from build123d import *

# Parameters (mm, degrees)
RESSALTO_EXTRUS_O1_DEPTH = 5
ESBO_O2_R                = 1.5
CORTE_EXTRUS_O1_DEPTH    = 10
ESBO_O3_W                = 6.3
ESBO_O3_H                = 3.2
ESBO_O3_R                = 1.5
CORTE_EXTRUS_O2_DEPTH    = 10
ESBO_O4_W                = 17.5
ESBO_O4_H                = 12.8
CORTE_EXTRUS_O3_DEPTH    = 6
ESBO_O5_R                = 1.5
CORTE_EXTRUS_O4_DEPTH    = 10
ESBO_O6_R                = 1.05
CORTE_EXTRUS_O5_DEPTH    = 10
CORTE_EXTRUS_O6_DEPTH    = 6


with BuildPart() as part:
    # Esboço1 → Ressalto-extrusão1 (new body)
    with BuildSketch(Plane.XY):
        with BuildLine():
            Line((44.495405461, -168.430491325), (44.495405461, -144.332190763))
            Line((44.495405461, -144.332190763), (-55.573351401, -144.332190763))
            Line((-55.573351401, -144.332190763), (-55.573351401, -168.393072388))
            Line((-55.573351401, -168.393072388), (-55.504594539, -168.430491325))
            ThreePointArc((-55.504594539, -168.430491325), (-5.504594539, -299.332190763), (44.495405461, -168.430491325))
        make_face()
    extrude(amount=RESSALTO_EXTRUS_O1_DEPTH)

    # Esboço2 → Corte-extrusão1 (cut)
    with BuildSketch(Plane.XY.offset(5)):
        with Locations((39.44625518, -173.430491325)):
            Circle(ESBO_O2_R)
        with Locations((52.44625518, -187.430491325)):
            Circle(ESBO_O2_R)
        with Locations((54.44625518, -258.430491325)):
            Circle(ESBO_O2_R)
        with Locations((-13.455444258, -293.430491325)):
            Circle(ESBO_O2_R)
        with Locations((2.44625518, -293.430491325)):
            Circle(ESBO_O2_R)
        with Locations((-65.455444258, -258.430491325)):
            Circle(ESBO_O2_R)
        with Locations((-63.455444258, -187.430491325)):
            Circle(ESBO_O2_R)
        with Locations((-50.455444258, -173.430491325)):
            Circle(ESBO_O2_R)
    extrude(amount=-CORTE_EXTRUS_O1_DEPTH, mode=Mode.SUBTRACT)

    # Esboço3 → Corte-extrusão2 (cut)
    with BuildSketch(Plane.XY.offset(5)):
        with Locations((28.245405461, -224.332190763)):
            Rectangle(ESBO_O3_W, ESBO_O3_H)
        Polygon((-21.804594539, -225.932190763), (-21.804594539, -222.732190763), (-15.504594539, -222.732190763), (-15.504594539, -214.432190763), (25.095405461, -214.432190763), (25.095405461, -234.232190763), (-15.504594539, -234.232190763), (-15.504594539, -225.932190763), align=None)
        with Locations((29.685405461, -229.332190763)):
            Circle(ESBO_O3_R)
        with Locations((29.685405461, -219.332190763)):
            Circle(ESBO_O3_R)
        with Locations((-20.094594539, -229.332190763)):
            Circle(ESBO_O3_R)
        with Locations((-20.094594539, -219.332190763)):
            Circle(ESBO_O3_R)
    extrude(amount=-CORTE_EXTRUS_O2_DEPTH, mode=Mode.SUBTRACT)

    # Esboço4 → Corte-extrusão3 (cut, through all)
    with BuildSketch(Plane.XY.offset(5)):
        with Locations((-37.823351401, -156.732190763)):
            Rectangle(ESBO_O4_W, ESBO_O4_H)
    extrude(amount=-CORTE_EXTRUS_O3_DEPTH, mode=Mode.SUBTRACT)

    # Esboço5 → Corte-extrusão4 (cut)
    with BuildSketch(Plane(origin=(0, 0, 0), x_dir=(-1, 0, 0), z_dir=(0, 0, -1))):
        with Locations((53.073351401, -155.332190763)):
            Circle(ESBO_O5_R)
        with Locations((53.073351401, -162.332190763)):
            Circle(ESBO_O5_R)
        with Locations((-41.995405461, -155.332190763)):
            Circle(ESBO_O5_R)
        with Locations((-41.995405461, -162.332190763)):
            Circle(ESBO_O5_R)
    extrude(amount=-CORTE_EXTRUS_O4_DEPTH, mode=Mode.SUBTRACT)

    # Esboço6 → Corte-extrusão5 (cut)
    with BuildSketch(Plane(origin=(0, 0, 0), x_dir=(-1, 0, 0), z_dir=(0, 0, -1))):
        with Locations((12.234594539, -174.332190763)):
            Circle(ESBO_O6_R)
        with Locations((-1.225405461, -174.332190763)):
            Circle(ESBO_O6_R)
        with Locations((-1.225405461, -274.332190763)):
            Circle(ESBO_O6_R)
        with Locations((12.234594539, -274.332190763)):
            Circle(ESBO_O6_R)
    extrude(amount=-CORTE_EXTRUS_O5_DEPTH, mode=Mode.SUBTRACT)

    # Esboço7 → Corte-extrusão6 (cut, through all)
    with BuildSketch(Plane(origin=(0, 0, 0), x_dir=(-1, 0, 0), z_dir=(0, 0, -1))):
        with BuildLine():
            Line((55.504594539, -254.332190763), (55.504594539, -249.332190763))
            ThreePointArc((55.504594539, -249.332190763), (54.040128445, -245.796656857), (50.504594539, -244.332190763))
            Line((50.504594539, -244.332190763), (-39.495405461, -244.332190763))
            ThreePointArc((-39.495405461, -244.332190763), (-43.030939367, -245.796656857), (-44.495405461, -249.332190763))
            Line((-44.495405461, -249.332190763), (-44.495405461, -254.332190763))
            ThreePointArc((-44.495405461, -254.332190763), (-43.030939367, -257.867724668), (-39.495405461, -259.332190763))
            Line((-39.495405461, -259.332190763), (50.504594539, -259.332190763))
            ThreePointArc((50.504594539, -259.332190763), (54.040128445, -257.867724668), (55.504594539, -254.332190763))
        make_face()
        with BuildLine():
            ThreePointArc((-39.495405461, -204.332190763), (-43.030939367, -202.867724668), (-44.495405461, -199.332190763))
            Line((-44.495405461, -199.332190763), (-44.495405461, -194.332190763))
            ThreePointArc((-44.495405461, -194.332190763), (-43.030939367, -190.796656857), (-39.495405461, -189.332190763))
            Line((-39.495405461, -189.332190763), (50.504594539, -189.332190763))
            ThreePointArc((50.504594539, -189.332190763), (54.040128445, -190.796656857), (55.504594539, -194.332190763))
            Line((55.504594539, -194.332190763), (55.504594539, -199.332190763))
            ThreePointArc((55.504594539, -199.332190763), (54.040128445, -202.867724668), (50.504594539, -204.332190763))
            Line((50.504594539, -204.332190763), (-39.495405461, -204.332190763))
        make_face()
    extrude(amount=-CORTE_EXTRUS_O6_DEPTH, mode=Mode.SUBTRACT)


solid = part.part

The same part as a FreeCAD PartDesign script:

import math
import FreeCAD as App
import Part
import Sketcher

V = App.Vector
Q = App.Units.Quantity


def add_polygon(sketch, points):
    """Adds a closed chain of lines whose ends are joined by coincident constraints."""
    first, n = sketch.GeometryCount, len(points)
    for a, b in zip(points, points[1:] + points[:1]):
        sketch.addGeometry(Part.LineSegment(App.Vector(*a, 0), App.Vector(*b, 0)), False)
    for i in range(n):
        sketch.addConstraint(Sketcher.Constraint("Coincident", first + i, 2, first + (i + 1) % n, 1))

doc = App.newDocument("Part")
body = doc.addObject("PartDesign::Body", "Body")

sketch1 = body.newObject("Sketcher::SketchObject", "Sketch")
sketch1.AttachmentSupport = (doc.getObject("XY_Plane"), [""])
sketch1.MapMode = "FlatFace"
sketch1.addGeometry(Part.LineSegment(V(44.5, -168.43, 0), V(44.5, -144.33, 0)), False)
sketch1.addGeometry(Part.LineSegment(V(44.5, -144.33, 0), V(-55.57, -144.33, 0)), False)
sketch1.addGeometry(Part.LineSegment(V(-55.57, -144.33, 0), V(-55.57, -168.39, 0)), False)
sketch1.addGeometry(Part.LineSegment(V(-55.57, -168.39, 0), V(-55.5, -168.43, 0)), False)
sketch1.addGeometry(Part.ArcOfCircle(Part.Circle(V(-5.5, -224.33, 0), V(0, 0, 1), 75), math.radians(132), math.radians(408)), False)
sketch1.addConstraint(Sketcher.Constraint("Coincident", 0, 2, 1, 1))
sketch1.addConstraint(Sketcher.Constraint("Coincident", 1, 2, 2, 1))
sketch1.addConstraint(Sketcher.Constraint("Coincident", 2, 2, 3, 1))
sketch1.addConstraint(Sketcher.Constraint("Coincident", 3, 2, 4, 1))
sketch1.addConstraint(Sketcher.Constraint("Coincident", 4, 2, 0, 1))
sketch1.addConstraint(Sketcher.Constraint("Vertical", 0))
sketch1.addConstraint(Sketcher.Constraint("Horizontal", 1))
sketch1.addConstraint(Sketcher.Constraint("Vertical", 2))
sketch1.addConstraint(Sketcher.Constraint("Horizontal", 3, 2, 4, 2))
sketch1.addConstraint(Sketcher.Constraint("Radius", 4, Q("75 mm")))
sketch1.addConstraint(Sketcher.Constraint("DistanceX", 4, 3, 0, 2, Q("50 mm")))
sketch1.addConstraint(Sketcher.Constraint("DistanceY", 4, 3, 0, 2, Q("80 mm")))
sketch1.addConstraint(Sketcher.Constraint("DistanceY", 2, 2, 2, 1, Q("24.060882 mm")))
sketch1.addConstraint(Sketcher.Constraint("Distance", 3, Q("0.07828 mm")))
sketch1.addConstraint(Sketcher.Constraint("DistanceY", 4, 3, -1, 1, Q("224.332191 mm")))
sketch1.addConstraint(Sketcher.Constraint("DistanceX", 1, 2, -1, 1, Q("55.573351 mm")))
pad1 = body.newObject("PartDesign::Pad", "Pad")
pad1.Profile = sketch1
pad1.Length = 5

sketch2 = body.newObject("Sketcher::SketchObject", "Sketch001")
sketch2.AttachmentSupport = (doc.getObject("XY_Plane"), [""])
sketch2.MapMode = "FlatFace"
sketch2.AttachmentOffset = App.Placement(V(0, 0, 5), App.Rotation())
sketch2.addGeometry(Part.Circle(V(39.4, -173.4, 0), V(0, 0, 1), 1.5), False)
sketch2.addGeometry(Part.Circle(V(52.4, -187.4, 0), V(0, 0, 1), 1.5), False)
sketch2.addGeometry(Part.Circle(V(54.4, -258.4, 0), V(0, 0, 1), 1.5), False)
sketch2.addGeometry(Part.Circle(V(-13.5, -293.4, 0), V(0, 0, 1), 1.5), False)
sketch2.addGeometry(Part.Circle(V(2.4, -293.4, 0), V(0, 0, 1), 1.5), False)
sketch2.addGeometry(Part.Circle(V(-65.5, -258.4, 0), V(0, 0, 1), 1.5), False)
sketch2.addGeometry(Part.Circle(V(-63.5, -187.4, 0), V(0, 0, 1), 1.5), False)
sketch2.addGeometry(Part.Circle(V(-50.5, -173.4, 0), V(0, 0, 1), 1.5), False)
sketch2.addConstraint(Sketcher.Constraint("Equal", 0, 1))
sketch2.addConstraint(Sketcher.Constraint("Equal", 1, 2))
sketch2.addConstraint(Sketcher.Constraint("Equal", 2, 3))
sketch2.addConstraint(Sketcher.Constraint("Equal", 3, 4))
sketch2.addConstraint(Sketcher.Constraint("Equal", 4, 5))
sketch2.addConstraint(Sketcher.Constraint("Equal", 5, 6))
sketch2.addConstraint(Sketcher.Constraint("Equal", 6, 7))
sketch2.addConstraint(Sketcher.Constraint("Horizontal", 3, 3, 4, 3))
sketch2.addConstraint(Sketcher.Constraint("Horizontal", 2, 3, 5, 3))
sketch2.addConstraint(Sketcher.Constraint("Horizontal", 1, 3, 6, 3))
sketch2.addConstraint(Sketcher.Constraint("Horizontal", 0, 3, 7, 3))
sketch2.addConstraint(Sketcher.Constraint("Diameter", 0, Q("3 mm")))
sketch2.addConstraint(Sketcher.Constraint("DistanceX", 0, 3, 1, 3, Q("13 mm")))
sketch2.addConstraint(Sketcher.Constraint("DistanceY", 1, 3, 0, 3, Q("14 mm")))
sketch2.addConstraint(Sketcher.Constraint("DistanceX", 1, 3, 2, 3, Q("2 mm")))
sketch2.addConstraint(Sketcher.Constraint("DistanceY", 2, 3, 1, 3, Q("71 mm")))
sketch2.addConstraint(Sketcher.Constraint("DistanceY", 3, 3, 2, 3, Q("35 mm")))
sketch2.addConstraint(Sketcher.Constraint("DistanceX", 4, 3, 2, 3, Q("52 mm")))
sketch2.addConstraint(Sketcher.Constraint("DistanceX", 5, 3, 3, 3, Q("52 mm")))
sketch2.addConstraint(Sketcher.Constraint("DistanceX", 5, 3, 6, 3, Q("2 mm")))
sketch2.addConstraint(Sketcher.Constraint("DistanceX", 6, 3, 7, 3, Q("13 mm")))
sketch2.addConstraint(Sketcher.Constraint("DistanceX", 3, 3, 2, 3, Q("67.901699 mm")))
sketch2.addConstraint(Sketcher.Constraint("DistanceY", 0, 3, -1, 1, Q("173.430491 mm")))
sketch2.addConstraint(Sketcher.Constraint("DistanceX", -1, 1, 0, 3, Q("39.446255 mm")))
pocket1 = body.newObject("PartDesign::Pocket", "Pocket")
pocket1.Profile = sketch2
pocket1.Length = 10

sketch3 = body.newObject("Sketcher::SketchObject", "Sketch002")
sketch3.AttachmentSupport = (doc.getObject("XY_Plane"), [""])
sketch3.MapMode = "FlatFace"
sketch3.AttachmentOffset = App.Placement(V(0, 0, 5), App.Rotation())
add_polygon(sketch3, [(25.1, -225.9), (31.4, -225.9), (31.4, -222.7), (25.1, -222.7), (25.1, -214.4), (-15.5, -214.4), (-15.5, -222.7), (-21.8, -222.7), (-21.8, -225.9), (-15.5, -225.9), (-15.5, -234.2), (25.1, -234.2)])
sketch3.addGeometry(Part.Circle(V(29.7, -229.3, 0), V(0, 0, 1), 1.5), False)
sketch3.addGeometry(Part.Circle(V(29.7, -219.3, 0), V(0, 0, 1), 1.5), False)
sketch3.addGeometry(Part.Circle(V(-20.1, -229.3, 0), V(0, 0, 1), 1.5), False)
sketch3.addGeometry(Part.Circle(V(-20.1, -219.3, 0), V(0, 0, 1), 1.5), False)
sketch3.addConstraint(Sketcher.Constraint("Horizontal", 0))
sketch3.addConstraint(Sketcher.Constraint("Vertical", 1))
sketch3.addConstraint(Sketcher.Constraint("Horizontal", 2))
sketch3.addConstraint(Sketcher.Constraint("Vertical", 3))
sketch3.addConstraint(Sketcher.Constraint("Horizontal", 4))
sketch3.addConstraint(Sketcher.Constraint("Vertical", 5))
sketch3.addConstraint(Sketcher.Constraint("Horizontal", 6))
sketch3.addConstraint(Sketcher.Constraint("Vertical", 7))
sketch3.addConstraint(Sketcher.Constraint("Horizontal", 8))
sketch3.addConstraint(Sketcher.Constraint("Vertical", 9))
sketch3.addConstraint(Sketcher.Constraint("Horizontal", 10))
sketch3.addConstraint(Sketcher.Constraint("Vertical", 11))
sketch3.addConstraint(Sketcher.Constraint("Equal", 12, 13))
sketch3.addConstraint(Sketcher.Constraint("Equal", 13, 14))
sketch3.addConstraint(Sketcher.Constraint("Equal", 14, 15))
sketch3.addConstraint(Sketcher.Constraint("Horizontal", 12, 3, 14, 3))
sketch3.addConstraint(Sketcher.Constraint("Horizontal", 13, 3, 15, 3))
sketch3.addConstraint(Sketcher.Constraint("Horizontal", 2, 2, 5, 2))
sketch3.addConstraint(Sketcher.Constraint("Horizontal", 0, 2, 7, 2))
sketch3.addConstraint(Sketcher.Constraint("Vertical", 12, 3, 13, 3))
sketch3.addConstraint(Sketcher.Constraint("Vertical", 14, 3, 15, 3))
sketch3.addConstraint(Sketcher.Constraint("Vertical", 5, 2, 8, 2))
sketch3.addConstraint(Sketcher.Constraint("Vertical", 3, 2, 10, 2))
sketch3.addConstraint(Sketcher.Constraint("Equal", 2, 6))
sketch3.addConstraint(Sketcher.Constraint("Equal", 5, 9))
sketch3.addConstraint(Sketcher.Constraint("Diameter", 12, Q("3 mm")))
sketch3.addConstraint(Sketcher.Constraint("DistanceX", 0, 1, 0, 2, Q("6.3 mm")))
sketch3.addConstraint(Sketcher.Constraint("DistanceX", 4, 2, 4, 1, Q("40.6 mm")))
sketch3.addConstraint(Sketcher.Constraint("DistanceY", 1, 1, 1, 2, Q("3.2 mm")))
sketch3.addConstraint(Sketcher.Constraint("DistanceY", 3, 1, 3, 2, Q("8.3 mm")))
sketch3.addConstraint(Sketcher.Constraint("DistanceY", 12, 3, 13, 3, Q("10 mm")))
sketch3.addConstraint(Sketcher.Constraint("DistanceY", 12, 3, 0, 2, Q("3.4 mm")))
sketch3.addConstraint(Sketcher.Constraint("DistanceX", 14, 3, 12, 3, Q("49.78 mm")))
sketch3.addConstraint(Sketcher.Constraint("DistanceX", 12, 3, 0, 2, Q("1.71 mm")))
sketch3.addConstraint(Sketcher.Constraint("DistanceY", 12, 3, -1, 1, Q("229.332191 mm")))
sketch3.addConstraint(Sketcher.Constraint("DistanceX", -1, 1, 12, 3, Q("29.685405 mm")))
pocket2 = body.newObject("PartDesign::Pocket", "Pocket001")
pocket2.Profile = sketch3
pocket2.Length = 10

sketch4 = body.newObject("Sketcher::SketchObject", "Sketch003")
sketch4.AttachmentSupport = (doc.getObject("XY_Plane"), [""])
sketch4.MapMode = "FlatFace"
sketch4.AttachmentOffset = App.Placement(V(0, 0, 5), App.Rotation())
add_polygon(sketch4, [(-47, -150), (-47, -163), (-29, -163), (-29, -150)])
sketch4.addConstraint(Sketcher.Constraint("Vertical", 0))
sketch4.addConstraint(Sketcher.Constraint("Horizontal", 1))
sketch4.addConstraint(Sketcher.Constraint("Vertical", 2))
sketch4.addConstraint(Sketcher.Constraint("Horizontal", 3))
sketch4.addConstraint(Sketcher.Constraint("DistanceX", 1, 1, 1, 2, Q("17.5 mm")))
sketch4.addConstraint(Sketcher.Constraint("DistanceY", 0, 2, 0, 1, Q("12.8 mm")))
sketch4.addConstraint(Sketcher.Constraint("DistanceX", 0, 2, -1, 1, Q("46.573351 mm")))
sketch4.addConstraint(Sketcher.Constraint("DistanceY", 0, 2, -1, 1, Q("163.132191 mm")))
pocket3 = body.newObject("PartDesign::Pocket", "Pocket002")
pocket3.Profile = sketch4
pocket3.Type = "ThroughAll"

sketch5 = body.newObject("Sketcher::SketchObject", "Sketch004")
sketch5.AttachmentSupport = (doc.getObject("XY_Plane"), [""])
sketch5.MapMode = "FlatFace"
sketch5.addGeometry(Part.Circle(V(-53.1, -155.3, 0), V(0, 0, 1), 1.5), False)
sketch5.addGeometry(Part.Circle(V(-53.1, -162.3, 0), V(0, 0, 1), 1.5), False)
sketch5.addGeometry(Part.Circle(V(42, -155.3, 0), V(0, 0, 1), 1.5), False)
sketch5.addGeometry(Part.Circle(V(42, -162.3, 0), V(0, 0, 1), 1.5), False)
sketch5.addConstraint(Sketcher.Constraint("Equal", 0, 1))
sketch5.addConstraint(Sketcher.Constraint("Equal", 1, 2))
sketch5.addConstraint(Sketcher.Constraint("Equal", 2, 3))
sketch5.addConstraint(Sketcher.Constraint("Horizontal", 0, 3, 2, 3))
sketch5.addConstraint(Sketcher.Constraint("Horizontal", 1, 3, 3, 3))
sketch5.addConstraint(Sketcher.Constraint("Vertical", 0, 3, 1, 3))
sketch5.addConstraint(Sketcher.Constraint("Vertical", 2, 3, 3, 3))
sketch5.addConstraint(Sketcher.Constraint("Diameter", 0, Q("3 mm")))
sketch5.addConstraint(Sketcher.Constraint("DistanceY", 1, 3, 0, 3, Q("7 mm")))
sketch5.addConstraint(Sketcher.Constraint("DistanceX", 0, 3, -1, 1, Q("53.073351 mm")))
sketch5.addConstraint(Sketcher.Constraint("DistanceY", 0, 3, -1, 1, Q("155.332191 mm")))
sketch5.addConstraint(Sketcher.Constraint("DistanceX", -1, 1, 2, 3, Q("41.995405 mm")))
pocket4 = body.newObject("PartDesign::Pocket", "Pocket003")
pocket4.Profile = sketch5
pocket4.Length = 10
pocket4.Reversed = True

sketch6 = body.newObject("Sketcher::SketchObject", "Sketch005")
sketch6.AttachmentSupport = (doc.getObject("XY_Plane"), [""])
sketch6.MapMode = "FlatFace"
sketch6.addGeometry(Part.Circle(V(-12.2, -174.3, 0), V(0, 0, 1), 1.1), False)
sketch6.addGeometry(Part.Circle(V(1.2, -174.3, 0), V(0, 0, 1), 1.1), False)
sketch6.addGeometry(Part.Circle(V(1.2, -274.3, 0), V(0, 0, 1), 1.1), False)
sketch6.addGeometry(Part.Circle(V(-12.2, -274.3, 0), V(0, 0, 1), 1.1), False)
sketch6.addConstraint(Sketcher.Constraint("Equal", 0, 1))
sketch6.addConstraint(Sketcher.Constraint("Equal", 1, 2))
sketch6.addConstraint(Sketcher.Constraint("Equal", 2, 3))
sketch6.addConstraint(Sketcher.Constraint("Horizontal", 0, 3, 1, 3))
sketch6.addConstraint(Sketcher.Constraint("Horizontal", 2, 3, 3, 3))
sketch6.addConstraint(Sketcher.Constraint("Vertical", 1, 3, 2, 3))
sketch6.addConstraint(Sketcher.Constraint("Vertical", 0, 3, 3, 3))
sketch6.addConstraint(Sketcher.Constraint("Diameter", 0, Q("2.1 mm")))
sketch6.addConstraint(Sketcher.Constraint("DistanceY", 2, 3, 1, 3, Q("100 mm")))
sketch6.addConstraint(Sketcher.Constraint("DistanceX", 0, 3, 1, 3, Q("13.46 mm")))
sketch6.addConstraint(Sketcher.Constraint("DistanceY", 0, 3, -1, 1, Q("174.332191 mm")))
sketch6.addConstraint(Sketcher.Constraint("DistanceX", 0, 3, -1, 1, Q("12.234595 mm")))
pocket5 = body.newObject("PartDesign::Pocket", "Pocket004")
pocket5.Profile = sketch6
pocket5.Length = 10
pocket5.Reversed = True

sketch7 = body.newObject("Sketcher::SketchObject", "Sketch006")
sketch7.AttachmentSupport = (doc.getObject("XY_Plane"), [""])
sketch7.MapMode = "FlatFace"
sketch7.addGeometry(Part.LineSegment(V(-56, -254, 0), V(-56, -249, 0)), False)
sketch7.addGeometry(Part.ArcOfCircle(Part.Circle(V(-51, -249, 0), V(0, 0, 1), 5), math.radians(90), math.radians(180)), False)
sketch7.addGeometry(Part.LineSegment(V(-51, -244, 0), V(39, -244, 0)), False)
sketch7.addGeometry(Part.ArcOfCircle(Part.Circle(V(39, -249, 0), V(0, 0, 1), 5), math.radians(0), math.radians(90)), False)
sketch7.addGeometry(Part.LineSegment(V(44, -249, 0), V(44, -254, 0)), False)
sketch7.addGeometry(Part.ArcOfCircle(Part.Circle(V(39, -254, 0), V(0, 0, 1), 5), math.radians(-90), math.radians(0)), False)
sketch7.addGeometry(Part.LineSegment(V(39, -259, 0), V(-51, -259, 0)), False)
sketch7.addGeometry(Part.ArcOfCircle(Part.Circle(V(-51, -254, 0), V(0, 0, 1), 5), math.radians(-180), math.radians(-90)), False)
sketch7.addGeometry(Part.ArcOfCircle(Part.Circle(V(39, -199, 0), V(0, 0, 1), 5), math.radians(-90), math.radians(0)), False)
sketch7.addGeometry(Part.LineSegment(V(39, -204, 0), V(-51, -204, 0)), False)
sketch7.addGeometry(Part.ArcOfCircle(Part.Circle(V(-51, -199, 0), V(0, 0, 1), 5), math.radians(-180), math.radians(-90)), False)
sketch7.addGeometry(Part.LineSegment(V(-56, -199, 0), V(-56, -194, 0)), False)
sketch7.addGeometry(Part.ArcOfCircle(Part.Circle(V(-51, -194, 0), V(0, 0, 1), 5), math.radians(90), math.radians(180)), False)
sketch7.addGeometry(Part.LineSegment(V(-51, -189, 0), V(39, -189, 0)), False)
sketch7.addGeometry(Part.ArcOfCircle(Part.Circle(V(39, -194, 0), V(0, 0, 1), 5), math.radians(0), math.radians(90)), False)
sketch7.addGeometry(Part.LineSegment(V(44, -194, 0), V(44, -199, 0)), False)
sketch7.addConstraint(Sketcher.Constraint("Tangent", 0, 2, 1, 2))
sketch7.addConstraint(Sketcher.Constraint("Tangent", 1, 1, 2, 1))
sketch7.addConstraint(Sketcher.Constraint("Tangent", 2, 2, 3, 2))
sketch7.addConstraint(Sketcher.Constraint("Tangent", 3, 1, 4, 1))
sketch7.addConstraint(Sketcher.Constraint("Tangent", 4, 2, 5, 2))
sketch7.addConstraint(Sketcher.Constraint("Tangent", 5, 1, 6, 1))
sketch7.addConstraint(Sketcher.Constraint("Tangent", 6, 2, 7, 2))
sketch7.addConstraint(Sketcher.Constraint("Tangent", 7, 1, 0, 1))
sketch7.addConstraint(Sketcher.Constraint("Tangent", 8, 1, 9, 1))
sketch7.addConstraint(Sketcher.Constraint("Tangent", 9, 2, 10, 2))
sketch7.addConstraint(Sketcher.Constraint("Tangent", 10, 1, 11, 1))
sketch7.addConstraint(Sketcher.Constraint("Tangent", 11, 2, 12, 2))
sketch7.addConstraint(Sketcher.Constraint("Tangent", 12, 1, 13, 1))
sketch7.addConstraint(Sketcher.Constraint("Tangent", 13, 2, 14, 2))
sketch7.addConstraint(Sketcher.Constraint("Tangent", 14, 1, 15, 1))
sketch7.addConstraint(Sketcher.Constraint("Tangent", 15, 2, 8, 2))
sketch7.addConstraint(Sketcher.Constraint("Vertical", 0))
sketch7.addConstraint(Sketcher.Constraint("Horizontal", 2))
sketch7.addConstraint(Sketcher.Constraint("Vertical", 4))
sketch7.addConstraint(Sketcher.Constraint("Horizontal", 6))
sketch7.addConstraint(Sketcher.Constraint("Horizontal", 9))
sketch7.addConstraint(Sketcher.Constraint("Vertical", 11))
sketch7.addConstraint(Sketcher.Constraint("Horizontal", 13))
sketch7.addConstraint(Sketcher.Constraint("Vertical", 15))
sketch7.addConstraint(Sketcher.Constraint("Equal", 1, 3))
sketch7.addConstraint(Sketcher.Constraint("Equal", 3, 5))
sketch7.addConstraint(Sketcher.Constraint("Equal", 5, 7))
sketch7.addConstraint(Sketcher.Constraint("Equal", 7, 8))
sketch7.addConstraint(Sketcher.Constraint("Equal", 8, 10))
sketch7.addConstraint(Sketcher.Constraint("Equal", 10, 12))
sketch7.addConstraint(Sketcher.Constraint("Equal", 12, 14))
sketch7.addConstraint(Sketcher.Constraint("Vertical", 5, 3, 8, 3))
sketch7.addConstraint(Sketcher.Constraint("Vertical", 7, 3, 10, 3))
sketch7.addConstraint(Sketcher.Constraint("Equal", 4, 11))
sketch7.addConstraint(Sketcher.Constraint("Radius", 1, Q("5 mm")))
sketch7.addConstraint(Sketcher.Constraint("DistanceX", 2, 1, 2, 2, Q("90 mm")))
sketch7.addConstraint(Sketcher.Constraint("DistanceY", 0, 1, 0, 2, Q("5 mm")))
sketch7.addConstraint(Sketcher.Constraint("DistanceY", 3, 3, 8, 3, Q("50 mm")))
sketch7.addConstraint(Sketcher.Constraint("DistanceY", 1, 3, -1, 1, Q("249.332191 mm")))
sketch7.addConstraint(Sketcher.Constraint("DistanceX", 1, 3, -1, 1, Q("50.504595 mm")))
pocket6 = body.newObject("PartDesign::Pocket", "Pocket005")
pocket6.Profile = sketch7
pocket6.Type = "ThroughAll"
pocket6.Reversed = True

doc.recompute()
